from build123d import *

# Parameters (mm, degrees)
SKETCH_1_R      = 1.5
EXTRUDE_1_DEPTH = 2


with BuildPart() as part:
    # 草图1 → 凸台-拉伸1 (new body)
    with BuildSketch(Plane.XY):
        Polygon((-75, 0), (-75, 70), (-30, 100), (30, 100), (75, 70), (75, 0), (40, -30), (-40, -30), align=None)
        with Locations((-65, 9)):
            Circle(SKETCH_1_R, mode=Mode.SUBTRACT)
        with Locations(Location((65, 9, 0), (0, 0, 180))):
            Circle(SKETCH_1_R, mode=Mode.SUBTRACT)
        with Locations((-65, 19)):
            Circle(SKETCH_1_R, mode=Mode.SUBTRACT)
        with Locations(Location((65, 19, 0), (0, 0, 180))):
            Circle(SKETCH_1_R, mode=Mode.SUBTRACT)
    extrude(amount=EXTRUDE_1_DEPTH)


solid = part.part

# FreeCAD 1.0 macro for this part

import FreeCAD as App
import Part
import Sketcher
from FreeCAD import Vector


def add_polygon(sketch, points):
    """Adds a closed chain of lines whose ends are joined by coincident constraints."""
    first, n = sketch.GeometryCount, len(points)
    for a, b in zip(points, points[1:] + points[:1]):
        sketch.addGeometry(Part.LineSegment(App.Vector(*a, 0), App.Vector(*b, 0)), False)
    for i in range(n):
        sketch.addConstraint(Sketcher.Constraint("Coincident", first + i, 2, first + (i + 1) % n, 1))

doc = App.newDocument("Part")
body = doc.addObject("PartDesign::Body", "Body")

# Sketch on XY plane
sketch1 = body.newObject("Sketcher::SketchObject", "Sketch")
sketch1.AttachmentSupport = (doc.getObject("XY_Plane"), [""])
sketch1.MapMode = "FlatFace"
add_polygon(sketch1, [(-75, 70), (-75, 0), (-40, -30), (40, -30), (75, 0), (75, 70), (30, 100), (-30, 100)])  # lines 0-7
sketch1.addGeometry(Part.Circle(Vector(65, 9, 0), Vector(0, 0, 1), 1.5), False)  # 8
sketch1.addGeometry(Part.Circle(Vector(-65, 9, 0), Vector(0, 0, 1), 1.5), False)  # 9
sketch1.addGeometry(Part.Circle(Vector(65, 19, 0), Vector(0, 0, 1), 1.5), False)  # 10
sketch1.addGeometry(Part.Circle(Vector(-65, 19, 0), Vector(0, 0, 1), 1.5), False)  # 11
sketch1.addConstraint([
    Sketcher.Constraint("Vertical", 0),
    Sketcher.Constraint("Horizontal", 2),
    Sketcher.Constraint("Vertical", 4),
    Sketcher.Constraint("Horizontal", 6),
    Sketcher.Constraint("Equal", 8, 9),
    Sketcher.Constraint("Equal", 9, 10),
    Sketcher.Constraint("Equal", 10, 11),
    Sketcher.Constraint("Symmetric", 0, 2, 3, 2, -1, 1),
    Sketcher.Constraint("Symmetric", 8, 3, 9, 3, -2),
    Sketcher.Constraint("Symmetric", 10, 3, 11, 3, -2),
    Sketcher.Constraint("PointOnObject", 0, 2, -1),
    Sketcher.Constraint("Horizontal", 4, 2, 7, 2),
    Sketcher.Constraint("Vertical", 8, 3, 10, 3),
    Sketcher.Constraint("Equal", 1, 3),
    Sketcher.Constraint("Equal", 5, 7),
    Sketcher.Constraint("Diameter", 8, 3.0),
    Sketcher.Constraint("DistanceX", 2, 1, 2, 2, 80.0),
    Sketcher.Constraint("DistanceX", 6, 2, 6, 1, 60.0),
    Sketcher.Constraint("DistanceY", 0, 2, 0, 1, 70.0),
    Sketcher.Constraint("DistanceX", -1, 1, 8, 3, 65.0),
    Sketcher.Constraint("DistanceY", -1, 1, 8, 3, 9.0),
    Sketcher.Constraint("DistanceY", -1, 1, 10, 3, 19.0),
    Sketcher.Constraint("DistanceX", 0, 2, -1, 1, 75.0),
    Sketcher.Constraint("DistanceY", 1, 2, -1, 1, 30.0),
    Sketcher.Constraint("DistanceY", -1, 1, 5, 2, 100.0),
])
pad1 = body.newObject("PartDesign::Pad", "Pad")
pad1.Profile = sketch1
pad1.Length = 2

doc.recompute()
